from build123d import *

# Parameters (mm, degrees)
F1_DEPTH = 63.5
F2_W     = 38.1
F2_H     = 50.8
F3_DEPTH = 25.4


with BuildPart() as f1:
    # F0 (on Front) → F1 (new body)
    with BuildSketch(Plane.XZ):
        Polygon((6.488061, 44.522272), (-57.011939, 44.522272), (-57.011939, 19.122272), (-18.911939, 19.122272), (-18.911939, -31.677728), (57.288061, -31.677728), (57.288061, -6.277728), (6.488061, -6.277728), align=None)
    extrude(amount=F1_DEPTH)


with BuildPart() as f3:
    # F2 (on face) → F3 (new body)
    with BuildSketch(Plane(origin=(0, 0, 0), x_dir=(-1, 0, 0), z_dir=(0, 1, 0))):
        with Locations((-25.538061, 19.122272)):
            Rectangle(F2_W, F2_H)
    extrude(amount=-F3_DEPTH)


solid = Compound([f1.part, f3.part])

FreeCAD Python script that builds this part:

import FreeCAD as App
import Part
import Sketcher
from FreeCAD import Vector
Q = App.Units.Quantity


def add_polygon(sketch, points):
    """Adds a closed chain of lines whose ends are joined by coincident constraints."""
    first, n = sketch.GeometryCount, len(points)
    for a, b in zip(points, points[1:] + points[:1]):
        sketch.addGeometry(Part.LineSegment(App.Vector(*a, 0), App.Vector(*b, 0)), False)
    for i in range(n):
        sketch.addConstraint(Sketcher.Constraint("Coincident", first + i, 2, first + (i + 1) % n, 1))

doc = App.newDocument("Part")
body = doc.addObject("PartDesign::Body", "Body")

# Sketch on XZ plane
sketch1 = doc.addObject("Sketcher::SketchObject", "Sketch")
body.addObject(sketch1)
sketch1.AttachmentSupport = (doc.XZ_Plane, [""])
sketch1.MapMode = "FlatFace"
add_polygon(sketch1, [(6, 45), (-57, 45), (-57, 19), (-19, 19), (-19, -32), (57, -32), (57, -6), (6, -6)])  # lines 0-7
sketch1.addConstraint(Sketcher.Constraint("Horizontal", 0))
sketch1.addConstraint(Sketcher.Constraint("Vertical", 1))
sketch1.addConstraint(Sketcher.Constraint("Horizontal", 2))
sketch1.addConstraint(Sketcher.Constraint("Vertical", 3))
sketch1.addConstraint(Sketcher.Constraint("Horizontal", 4))
sketch1.addConstraint(Sketcher.Constraint("Vertical", 5))
sketch1.addConstraint(Sketcher.Constraint("Horizontal", 6))
sketch1.addConstraint(Sketcher.Constraint("Vertical", 7))
sketch1.addConstraint(Sketcher.Constraint("Equal", 6, 3))
sketch1.addConstraint(Sketcher.Constraint("Equal", 1, 5))
sketch1.addConstraint(Sketcher.Constraint("DistanceX", 4, 1, 4, 2, Q("3 in")))
sketch1.addConstraint(Sketcher.Constraint("DistanceX", 6, 2, 6, 1, Q("2 in")))
sketch1.addConstraint(Sketcher.Constraint("DistanceY", 1, 2, 1, 1, Q("1 in")))
sketch1.addConstraint(Sketcher.Constraint("DistanceX", 0, 2, 0, 1, Q("2.5 in")))
sketch1.addConstraint(Sketcher.Constraint("DistanceX", 0, 2, -1, 1, 57.011939))
sketch1.addConstraint(Sketcher.Constraint("DistanceY", -1, 1, 1, 2, 19.122272))
pad1 = doc.addObject("PartDesign::Pad", "Pad")
body.addObject(pad1)
pad1.Profile = sketch1
pad1.Length = Q("2.5 in")
body2 = doc.addObject("PartDesign::Body", "Body001")

# Sketch on XZ plane
sketch2 = doc.addObject("Sketcher::SketchObject", "Sketch001")
body2.addObject(sketch2)
sketch2.AttachmentSupport = (doc.getObject("XZ_Plane001"), [""])
sketch2.MapMode = "FlatFace"
add_polygon(sketch2, [(45, 45), (45, -6), (6, -6), (6, 45)])  # lines 0-3
sketch2.addConstraint(Sketcher.Constraint("Vertical", 0))
sketch2.addConstraint(Sketcher.Constraint("Horizontal", 1))
sketch2.addConstraint(Sketcher.Constraint("Vertical", 2))
sketch2.addConstraint(Sketcher.Constraint("Horizontal", 3))
sketch2.addConstraint(Sketcher.Constraint("DistanceY", 0, 2, 0, 1, Q("2 in")))
sketch2.addConstraint(Sketcher.Constraint("DistanceX", 1, 2, 1, 1, Q("1.5 in")))
sketch2.addConstraint(Sketcher.Constraint("DistanceX", -1, 1, 0, 2, 44.588061))
sketch2.addConstraint(Sketcher.Constraint("DistanceY", 0, 2, -1, 1, 6.277728))
pad2 = doc.addObject("PartDesign::Pad", "Pad001")
body2.addObject(pad2)
pad2.Profile = sketch2
pad2.Length = Q("1 in")

doc.recompute()
